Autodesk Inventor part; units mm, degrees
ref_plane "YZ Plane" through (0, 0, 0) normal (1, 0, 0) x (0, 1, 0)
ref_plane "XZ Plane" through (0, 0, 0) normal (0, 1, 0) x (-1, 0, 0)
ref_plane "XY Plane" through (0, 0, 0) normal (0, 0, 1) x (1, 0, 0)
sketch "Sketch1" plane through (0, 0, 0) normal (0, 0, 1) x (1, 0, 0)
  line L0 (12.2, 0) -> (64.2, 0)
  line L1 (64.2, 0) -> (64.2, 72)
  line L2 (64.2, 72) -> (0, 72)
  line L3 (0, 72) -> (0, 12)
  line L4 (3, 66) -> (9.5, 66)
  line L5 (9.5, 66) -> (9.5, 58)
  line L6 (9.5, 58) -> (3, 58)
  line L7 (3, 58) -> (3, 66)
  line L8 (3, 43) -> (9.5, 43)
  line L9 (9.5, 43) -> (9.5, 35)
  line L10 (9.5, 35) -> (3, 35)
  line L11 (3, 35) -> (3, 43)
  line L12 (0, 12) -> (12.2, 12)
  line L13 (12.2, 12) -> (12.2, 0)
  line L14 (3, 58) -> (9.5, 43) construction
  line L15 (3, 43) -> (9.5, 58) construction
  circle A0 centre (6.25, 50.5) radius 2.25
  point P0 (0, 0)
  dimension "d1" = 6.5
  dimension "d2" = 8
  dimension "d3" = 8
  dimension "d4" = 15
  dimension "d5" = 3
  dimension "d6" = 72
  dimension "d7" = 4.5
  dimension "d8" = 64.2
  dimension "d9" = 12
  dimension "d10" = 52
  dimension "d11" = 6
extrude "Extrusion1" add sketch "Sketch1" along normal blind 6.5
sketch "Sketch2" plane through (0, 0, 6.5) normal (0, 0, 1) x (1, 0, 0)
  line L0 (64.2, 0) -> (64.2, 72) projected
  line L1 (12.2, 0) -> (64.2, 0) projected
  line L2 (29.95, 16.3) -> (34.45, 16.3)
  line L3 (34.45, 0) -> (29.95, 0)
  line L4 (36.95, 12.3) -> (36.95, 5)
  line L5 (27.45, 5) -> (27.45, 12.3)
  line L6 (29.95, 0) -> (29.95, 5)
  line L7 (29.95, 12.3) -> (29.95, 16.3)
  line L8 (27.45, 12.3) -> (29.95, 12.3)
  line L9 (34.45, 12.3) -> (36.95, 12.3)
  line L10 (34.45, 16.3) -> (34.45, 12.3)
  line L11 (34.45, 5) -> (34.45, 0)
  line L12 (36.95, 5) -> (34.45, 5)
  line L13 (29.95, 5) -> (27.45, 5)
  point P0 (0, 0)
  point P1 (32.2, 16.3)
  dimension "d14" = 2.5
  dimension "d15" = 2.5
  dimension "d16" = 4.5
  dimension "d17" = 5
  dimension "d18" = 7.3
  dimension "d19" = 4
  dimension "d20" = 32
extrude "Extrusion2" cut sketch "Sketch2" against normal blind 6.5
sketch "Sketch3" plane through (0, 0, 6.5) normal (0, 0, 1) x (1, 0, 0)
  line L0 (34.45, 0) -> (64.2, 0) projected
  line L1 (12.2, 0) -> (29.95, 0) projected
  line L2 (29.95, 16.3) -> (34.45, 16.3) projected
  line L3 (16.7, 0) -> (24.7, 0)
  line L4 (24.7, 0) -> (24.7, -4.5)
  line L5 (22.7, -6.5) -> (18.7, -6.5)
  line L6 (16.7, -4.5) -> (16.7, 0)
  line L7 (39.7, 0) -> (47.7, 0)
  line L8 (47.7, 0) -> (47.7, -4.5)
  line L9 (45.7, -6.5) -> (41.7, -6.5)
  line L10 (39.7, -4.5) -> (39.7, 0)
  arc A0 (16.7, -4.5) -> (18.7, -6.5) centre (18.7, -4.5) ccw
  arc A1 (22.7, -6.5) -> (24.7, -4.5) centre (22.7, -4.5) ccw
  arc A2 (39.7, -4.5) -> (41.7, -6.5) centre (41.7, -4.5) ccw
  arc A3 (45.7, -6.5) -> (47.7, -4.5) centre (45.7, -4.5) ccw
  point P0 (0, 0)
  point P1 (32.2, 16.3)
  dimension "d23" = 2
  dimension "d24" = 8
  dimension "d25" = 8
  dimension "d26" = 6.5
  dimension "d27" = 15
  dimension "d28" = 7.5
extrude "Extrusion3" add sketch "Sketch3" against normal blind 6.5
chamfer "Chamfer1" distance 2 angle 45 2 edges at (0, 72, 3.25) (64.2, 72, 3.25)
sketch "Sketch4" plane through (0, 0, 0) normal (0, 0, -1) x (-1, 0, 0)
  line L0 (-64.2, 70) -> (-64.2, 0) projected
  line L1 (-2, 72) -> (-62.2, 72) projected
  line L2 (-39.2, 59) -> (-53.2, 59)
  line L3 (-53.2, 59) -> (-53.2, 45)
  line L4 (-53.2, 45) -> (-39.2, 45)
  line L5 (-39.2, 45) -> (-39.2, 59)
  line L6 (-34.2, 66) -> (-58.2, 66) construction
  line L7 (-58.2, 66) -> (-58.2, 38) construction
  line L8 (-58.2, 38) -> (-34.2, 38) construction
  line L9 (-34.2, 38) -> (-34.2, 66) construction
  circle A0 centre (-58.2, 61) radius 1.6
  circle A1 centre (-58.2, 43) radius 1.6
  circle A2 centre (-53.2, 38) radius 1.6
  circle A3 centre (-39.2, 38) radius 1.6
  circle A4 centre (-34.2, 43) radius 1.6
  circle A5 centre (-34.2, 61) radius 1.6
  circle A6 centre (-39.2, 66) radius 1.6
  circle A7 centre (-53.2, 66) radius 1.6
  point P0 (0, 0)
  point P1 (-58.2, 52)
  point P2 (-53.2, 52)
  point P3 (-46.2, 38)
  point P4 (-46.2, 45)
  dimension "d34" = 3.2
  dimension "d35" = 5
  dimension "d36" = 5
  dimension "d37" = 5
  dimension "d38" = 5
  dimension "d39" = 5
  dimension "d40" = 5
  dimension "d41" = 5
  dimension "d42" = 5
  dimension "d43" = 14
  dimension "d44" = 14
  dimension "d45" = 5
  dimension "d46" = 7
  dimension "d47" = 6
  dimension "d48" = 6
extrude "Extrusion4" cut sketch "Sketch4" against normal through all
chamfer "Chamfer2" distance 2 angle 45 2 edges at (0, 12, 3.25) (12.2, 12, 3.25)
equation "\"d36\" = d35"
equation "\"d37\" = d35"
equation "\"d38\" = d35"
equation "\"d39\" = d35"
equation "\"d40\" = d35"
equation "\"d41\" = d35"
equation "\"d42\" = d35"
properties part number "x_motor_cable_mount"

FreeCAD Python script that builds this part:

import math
import FreeCAD as App
import Part
import Sketcher


def edges_at(feature, points):
    """Names of the edges that pass closest to the given points."""
    edges = feature.Shape.Edges
    near = lambda p: min(range(len(edges)), key=lambda i: edges[i].distToShape(Part.Vertex(*p))[0])
    return sorted({f"Edge{near(p) + 1}" for p in points})

doc = App.newDocument("Part")
params = doc.addObject("Spreadsheet::Sheet", "Params")
for row, (alias, value) in enumerate([
    ("sketch1_diameter", "4.5 mm"),
    ("sketch1_width", "52 mm"),
    ("sketch1_height", "12 mm"),
    ("sketch1_height2", "72 mm"),
    ("sketch1_height3", "8 mm"),
    ("pad1_length", "6.5 mm"),
    ("sketch2_height", "5 mm"),
    ("sketch2_height2", "4 mm"),
    ("sketch2_width", "4.5 mm"),
    ("sketch2_width2", "2.5 mm"),
    ("sketch2_height3", "7.3 mm"),
    ("pocket1_length", "6.5 mm"),
    ("sketch3_radius", "2 mm"),
    ("sketch3_width", "8 mm"),
    ("pad2_length", "6.5 mm"),
    ("chamfer_size", "2 mm"),
    ("sketch4_diameter", "3.2 mm"),
    ("sketch4_width", "14 mm"),
    ("chamfer2_size", "2 mm"),
], start=1):
    params.set(f"A{row}", alias)
    params.set(f"B{row}", "=" + value)
    params.setAlias(f"B{row}", alias)

body = doc.addObject("PartDesign::Body", "Body")

# Sketch on XY plane
sketch1 = body.newObject("Sketcher::SketchObject", "Sketch")
sketch1.AttachmentSupport = (doc.getObject("XY_Plane"), [""])
sketch1.MapMode = "FlatFace"
sketch1.addGeometry([
    Part.LineSegment(App.Vector(12.2, 12, 0), App.Vector(12.2, 0, 0)),  # 0
    Part.LineSegment(App.Vector(12.2, 0, 0), App.Vector(64.2, 0, 0)),  # 1
    Part.LineSegment(App.Vector(64.2, 0, 0), App.Vector(64.2, 72, 0)),  # 2
    Part.LineSegment(App.Vector(64.2, 72, 0), App.Vector(0, 72, 0)),  # 3
    Part.LineSegment(App.Vector(0, 72, 0), App.Vector(0, 12, 0)),  # 4
    Part.LineSegment(App.Vector(0, 12, 0), App.Vector(12.2, 12, 0)),  # 5
    Part.LineSegment(App.Vector(3, 35, 0), App.Vector(3, 43, 0)),  # 6
    Part.LineSegment(App.Vector(3, 43, 0), App.Vector(9.5, 43, 0)),  # 7
    Part.LineSegment(App.Vector(9.5, 43, 0), App.Vector(9.5, 35, 0)),  # 8
    Part.LineSegment(App.Vector(9.5, 35, 0), App.Vector(3, 35, 0)),  # 9
    Part.Circle(App.Vector(6.2, 50.5, 0), App.Vector(0, 0, 1), 2.2),  # 10
    Part.LineSegment(App.Vector(3, 58, 0), App.Vector(3, 66, 0)),  # 11
    Part.LineSegment(App.Vector(3, 66, 0), App.Vector(9.5, 66, 0)),  # 12
    Part.LineSegment(App.Vector(9.5, 66, 0), App.Vector(9.5, 58, 0)),  # 13
    Part.LineSegment(App.Vector(9.5, 58, 0), App.Vector(3, 58, 0)),  # 14
], False)
sketch1.addConstraint([
    Sketcher.Constraint("Coincident", 0, 2, 1, 1),
    Sketcher.Constraint("Coincident", 1, 2, 2, 1),
    Sketcher.Constraint("Coincident", 2, 2, 3, 1),
    Sketcher.Constraint("Coincident", 3, 2, 4, 1),
    Sketcher.Constraint("Coincident", 4, 2, 5, 1),
    Sketcher.Constraint("Coincident", 5, 2, 0, 1),
    Sketcher.Constraint("Coincident", 6, 2, 7, 1),
    Sketcher.Constraint("Coincident", 7, 2, 8, 1),
    Sketcher.Constraint("Coincident", 8, 2, 9, 1),
    Sketcher.Constraint("Coincident", 9, 2, 6, 1),
    Sketcher.Constraint("Coincident", 11, 2, 12, 1),
    Sketcher.Constraint("Coincident", 12, 2, 13, 1),
    Sketcher.Constraint("Coincident", 13, 2, 14, 1),
    Sketcher.Constraint("Coincident", 14, 2, 11, 1),
    Sketcher.Constraint("Vertical", 0),
    Sketcher.Constraint("Horizontal", 1),
    Sketcher.Constraint("Vertical", 2),
    Sketcher.Constraint("Horizontal", 3),
    Sketcher.Constraint("Vertical", 4),
    Sketcher.Constraint("Horizontal", 5),
    Sketcher.Constraint("Vertical", 6),
    Sketcher.Constraint("Horizontal", 7),
    Sketcher.Constraint("Vertical", 8),
    Sketcher.Constraint("Horizontal", 9),
    Sketcher.Constraint("Vertical", 11),
    Sketcher.Constraint("Horizontal", 12),
    Sketcher.Constraint("Vertical", 13),
    Sketcher.Constraint("Horizontal", 14),
    Sketcher.Constraint("PointOnObject", 0, 2, -1),
    Sketcher.Constraint("PointOnObject", 3, 2, -2),
    Sketcher.Constraint("Vertical", 9, 2, 11, 2),
    Sketcher.Constraint("Vertical", 8, 2, 12, 2),
    Sketcher.Constraint("Equal", 8, 11),
    Sketcher.Constraint("Diameter", 10, 4.5),
    Sketcher.Constraint("DistanceX", 1, 1, 1, 2, 52.0),
    Sketcher.Constraint("DistanceY", 0, 2, 0, 1, 12.0),
    Sketcher.Constraint("DistanceY", 2, 1, 2, 2, 72.0),
    Sketcher.Constraint("DistanceY", 6, 1, 6, 2, 8.0),
    Sketcher.Constraint("DistanceX", 3, 2, 3, 1, 64.2),
    Sketcher.Constraint("DistanceX", 7, 1, 7, 2, 6.5),
    Sketcher.Constraint("DistanceX", -1, 1, 6, 2, 3.0),
    Sketcher.Constraint("DistanceY", 11, 2, 3, 2, 6.0),
    Sketcher.Constraint("DistanceY", 7, 2, 13, 2, 15.0),
    Sketcher.Constraint("DistanceY", -1, 1, 10, 3, 50.5),
    Sketcher.Constraint("DistanceX", -1, 1, 10, 3, 6.25),
])
sketch1.setExpression("Constraints[33]", "Params.sketch1_diameter")
sketch1.setExpression("Constraints[34]", "Params.sketch1_width")
sketch1.setExpression("Constraints[35]", "Params.sketch1_height")
sketch1.setExpression("Constraints[36]", "Params.sketch1_height2")
sketch1.setExpression("Constraints[37]", "Params.sketch1_height3")
pad1 = body.newObject("PartDesign::Pad", "Pad")
pad1.Profile = sketch1
pad1.setExpression("Length", "Params.pad1_length")

# Sketch on XY plane
sketch2 = body.newObject("Sketcher::SketchObject", "Sketch001")
sketch2.AttachmentSupport = (doc.getObject("XY_Plane"), [""])
sketch2.MapMode = "FlatFace"
sketch2.AttachmentOffset = App.Placement(App.Vector(0, 0, 6.5), App.Rotation())
sketch2.addGeometry([
    Part.LineSegment(App.Vector(29.9, 5, 0), App.Vector(29.9, 0, 0)),  # 0
    Part.LineSegment(App.Vector(29.9, 0, 0), App.Vector(34.5, 0, 0)),  # 1
    Part.LineSegment(App.Vector(34.5, 0, 0), App.Vector(34.5, 5, 0)),  # 2
    Part.LineSegment(App.Vector(34.5, 5, 0), App.Vector(37, 5, 0)),  # 3
    Part.LineSegment(App.Vector(37, 5, 0), App.Vector(37, 12.3, 0)),  # 4
    Part.LineSegment(App.Vector(37, 12.3, 0), App.Vector(34.5, 12.3, 0)),  # 5
    Part.LineSegment(App.Vector(34.5, 12.3, 0), App.Vector(34.5, 16.3, 0)),  # 6
    Part.LineSegment(App.Vector(34.5, 16.3, 0), App.Vector(29.9, 16.3, 0)),  # 7
    Part.LineSegment(App.Vector(29.9, 16.3, 0), App.Vector(29.9, 12.3, 0)),  # 8
    Part.LineSegment(App.Vector(29.9, 12.3, 0), App.Vector(27.4, 12.3, 0)),  # 9
    Part.LineSegment(App.Vector(27.4, 12.3, 0), App.Vector(27.4, 5, 0)),  # 10
    Part.LineSegment(App.Vector(27.4, 5, 0), App.Vector(29.9, 5, 0)),  # 11
], False)
sketch2.addConstraint([
    Sketcher.Constraint("Coincident", 0, 2, 1, 1),
    Sketcher.Constraint("Coincident", 1, 2, 2, 1),
    Sketcher.Constraint("Coincident", 2, 2, 3, 1),
    Sketcher.Constraint("Coincident", 3, 2, 4, 1),
    Sketcher.Constraint("Coincident", 4, 2, 5, 1),
    Sketcher.Constraint("Coincident", 5, 2, 6, 1),
    Sketcher.Constraint("Coincident", 6, 2, 7, 1),
    Sketcher.Constraint("Coincident", 7, 2, 8, 1),
    Sketcher.Constraint("Coincident", 8, 2, 9, 1),
    Sketcher.Constraint("Coincident", 9, 2, 10, 1),
    Sketcher.Constraint("Coincident", 10, 2, 11, 1),
    Sketcher.Constraint("Coincident", 11, 2, 0, 1),
    Sketcher.Constraint("Vertical", 0),
    Sketcher.Constraint("Horizontal", 1),
    Sketcher.Constraint("Vertical", 2),
    Sketcher.Constraint("Horizontal", 3),
    Sketcher.Constraint("Vertical", 4),
    Sketcher.Constraint("Horizontal", 5),
    Sketcher.Constraint("Vertical", 6),
    Sketcher.Constraint("Horizontal", 7),
    Sketcher.Constraint("Vertical", 8),
    Sketcher.Constraint("Horizontal", 9),
    Sketcher.Constraint("Vertical", 10),
    Sketcher.Constraint("Horizontal", 11),
    Sketcher.Constraint("PointOnObject", 0, 2, -1),
    Sketcher.Constraint("Horizontal", 5, 2, 8, 2),
    Sketcher.Constraint("Horizontal", 3, 2, 10, 2),
    Sketcher.Constraint("Vertical", 2, 2, 5, 2),
    Sketcher.Constraint("Vertical", 0, 2, 7, 2),
    Sketcher.Constraint("Equal", 5, 9),
    Sketcher.Constraint("DistanceY", 0, 2, 0, 1, 5.0),
    Sketcher.Constraint("DistanceY", 6, 1, 6, 2, 4.0),
    Sketcher.Constraint("DistanceX", 1, 1, 1, 2, 4.5),
    Sketcher.Constraint("DistanceX", 3, 1, 3, 2, 2.5),
    Sketcher.Constraint("DistanceY", 4, 1, 4, 2, 7.3),
    Sketcher.Constraint("DistanceX", -1, 1, 0, 2, 29.95),
])
sketch2.setExpression("Constraints[30]", "Params.sketch2_height")
sketch2.setExpression("Constraints[31]", "Params.sketch2_height2")
sketch2.setExpression("Constraints[32]", "Params.sketch2_width")
sketch2.setExpression("Constraints[33]", "Params.sketch2_width2")
sketch2.setExpression("Constraints[34]", "Params.sketch2_height3")
pocket1 = body.newObject("PartDesign::Pocket", "Pocket")
pocket1.Profile = sketch2
pocket1.setExpression("Length", "Params.pocket1_length")

# Sketch on XY plane
sketch3 = body.newObject("Sketcher::SketchObject", "Sketch002")
sketch3.AttachmentSupport = (doc.getObject("XY_Plane"), [""])
sketch3.MapMode = "FlatFace"
sketch3.AttachmentOffset = App.Placement(App.Vector(0, 0, 6.5), App.Rotation())
sketch3.addGeometry([
    Part.LineSegment(App.Vector(47.7, 0, 0), App.Vector(39.7, 0, 0)),  # 0
    Part.LineSegment(App.Vector(39.7, 0, 0), App.Vector(39.7, -4.5, 0)),  # 1
    Part.ArcOfCircle(Part.Circle(App.Vector(41.7, -4.5, 0), App.Vector(0, 0, 1), 2), math.radians(180), math.radians(270)),  # 2
    Part.LineSegment(App.Vector(41.7, -6.5, 0), App.Vector(45.7, -6.5, 0)),  # 3
    Part.ArcOfCircle(Part.Circle(App.Vector(45.7, -4.5, 0), App.Vector(0, 0, 1), 2), math.radians(-90), math.radians(0)),  # 4
    Part.LineSegment(App.Vector(47.7, -4.5, 0), App.Vector(47.7, 0, 0)),  # 5
    Part.LineSegment(App.Vector(24.7, 0, 0), App.Vector(16.7, 0, 0)),  # 6
    Part.LineSegment(App.Vector(16.7, 0, 0), App.Vector(16.7, -4.5, 0)),  # 7
    Part.ArcOfCircle(Part.Circle(App.Vector(18.7, -4.5, 0), App.Vector(0, 0, 1), 2), math.radians(180), math.radians(270)),  # 8
    Part.LineSegment(App.Vector(18.7, -6.5, 0), App.Vector(22.7, -6.5, 0)),  # 9
    Part.ArcOfCircle(Part.Circle(App.Vector(22.7, -4.5, 0), App.Vector(0, 0, 1), 2), math.radians(-90), math.radians(0)),  # 10
    Part.LineSegment(App.Vector(24.7, -4.5, 0), App.Vector(24.7, 0, 0)),  # 11
], False)
sketch3.addConstraint([
    Sketcher.Constraint("Coincident", 0, 2, 1, 1),
    Sketcher.Constraint("Tangent", 1, 2, 2, 1),
    Sketcher.Constraint("Tangent", 2, 2, 3, 1),
    Sketcher.Constraint("Tangent", 3, 2, 4, 1),
    Sketcher.Constraint("Tangent", 4, 2, 5, 1),
    Sketcher.Constraint("Coincident", 5, 2, 0, 1),
    Sketcher.Constraint("Coincident", 6, 2, 7, 1),
    Sketcher.Constraint("Tangent", 7, 2, 8, 1),
    Sketcher.Constraint("Tangent", 8, 2, 9, 1),
    Sketcher.Constraint("Tangent", 9, 2, 10, 1),
    Sketcher.Constraint("Tangent", 10, 2, 11, 1),
    Sketcher.Constraint("Coincident", 11, 2, 6, 1),
    Sketcher.Constraint("Horizontal", 0),
    Sketcher.Constraint("Vertical", 1),
    Sketcher.Constraint("Horizontal", 3),
    Sketcher.Constraint("Vertical", 5),
    Sketcher.Constraint("Horizontal", 6),
    Sketcher.Constraint("Vertical", 7),
    Sketcher.Constraint("Horizontal", 9),
    Sketcher.Constraint("Vertical", 11),
    Sketcher.Constraint("Equal", 2, 4),
    Sketcher.Constraint("Equal", 4, 8),
    Sketcher.Constraint("Equal", 8, 10),
    Sketcher.Constraint("PointOnObject", 0, 2, -1),
    Sketcher.Constraint("PointOnObject", 6, 2, -1),
    Sketcher.Constraint("Horizontal", 4, 3, 8, 3),
    Sketcher.Constraint("Equal", 0, 6),
    Sketcher.Constraint("Radius", 2, 2.0),
    Sketcher.Constraint("DistanceX", 0, 2, 0, 1, 8.0),
    Sketcher.Constraint("DistanceY", 2, 2, -1, 1, 6.5),
    Sketcher.Constraint("DistanceX", 8, 3, 2, 3, 23.0),
    Sketcher.Constraint("DistanceX", -1, 1, 2, 3, 41.7),
])
sketch3.setExpression("Constraints[27]", "Params.sketch3_radius")
sketch3.setExpression("Constraints[28]", "Params.sketch3_width")
pad2 = body.newObject("PartDesign::Pad", "Pad001")
pad2.Profile = sketch3
pad2.setExpression("Length", "Params.pad2_length")
pad2.Reversed = True
doc.recompute()

chamfer = body.newObject("PartDesign::Chamfer", "Chamfer")
chamfer.Base = (pad2, edges_at(pad2, [(0, 72, 3.25), (64.2, 72, 3.25)]))
chamfer.setExpression("Size", "Params.chamfer_size")

# Sketch on XY plane
sketch4 = body.newObject("Sketcher::SketchObject", "Sketch003")
sketch4.AttachmentSupport = (doc.getObject("XY_Plane"), [""])
sketch4.MapMode = "FlatFace"
sketch4.addGeometry([
    Part.LineSegment(App.Vector(39.2, 45, 0), App.Vector(39.2, 59, 0)),  # 0
    Part.LineSegment(App.Vector(39.2, 59, 0), App.Vector(53.2, 59, 0)),  # 1
    Part.LineSegment(App.Vector(53.2, 59, 0), App.Vector(53.2, 45, 0)),  # 2
    Part.LineSegment(App.Vector(53.2, 45, 0), App.Vector(39.2, 45, 0)),  # 3
    Part.Circle(App.Vector(58.2, 61, 0), App.Vector(0, 0, 1), 1.6),  # 4
    Part.Circle(App.Vector(58.2, 43, 0), App.Vector(0, 0, 1), 1.6),  # 5
    Part.Circle(App.Vector(53.2, 38, 0), App.Vector(0, 0, 1), 1.6),  # 6
    Part.Circle(App.Vector(39.2, 38, 0), App.Vector(0, 0, 1), 1.6),  # 7
    Part.Circle(App.Vector(34.2, 43, 0), App.Vector(0, 0, 1), 1.6),  # 8
    Part.Circle(App.Vector(34.2, 61, 0), App.Vector(0, 0, 1), 1.6),  # 9
    Part.Circle(App.Vector(39.2, 66, 0), App.Vector(0, 0, 1), 1.6),  # 10
    Part.Circle(App.Vector(53.2, 66, 0), App.Vector(0, 0, 1), 1.6),  # 11
], False)
sketch4.addConstraint([
    Sketcher.Constraint("Coincident", 0, 2, 1, 1),
    Sketcher.Constraint("Coincident", 1, 2, 2, 1),
    Sketcher.Constraint("Coincident", 2, 2, 3, 1),
    Sketcher.Constraint("Coincident", 3, 2, 0, 1),
    Sketcher.Constraint("Vertical", 0),
    Sketcher.Constraint("Horizontal", 1),
    Sketcher.Constraint("Vertical", 2),
    Sketcher.Constraint("Horizontal", 3),
    Sketcher.Constraint("Equal", 4, 5),
    Sketcher.Constraint("Equal", 5, 6),
    Sketcher.Constraint("Equal", 6, 7),
    Sketcher.Constraint("Equal", 7, 8),
    Sketcher.Constraint("Equal", 8, 9),
    Sketcher.Constraint("Equal", 9, 10),
    Sketcher.Constraint("Equal", 10, 11),
    Sketcher.Constraint("Horizontal", 6, 3, 7, 3),
    Sketcher.Constraint("Horizontal", 5, 3, 8, 3),
    Sketcher.Constraint("Horizontal", 4, 3, 9, 3),
    Sketcher.Constraint("Horizontal", 10, 3, 11, 3),
    Sketcher.Constraint("Vertical", 4, 3, 5, 3),
    Sketcher.Constraint("Vertical", 8, 3, 9, 3),
    Sketcher.Constraint("Vertical", 7, 3, 10, 3),
    Sketcher.Constraint("Vertical", 6, 3, 11, 3),
    Sketcher.Constraint("Vertical", 10, 3, 0, 2),
    Sketcher.Constraint("Vertical", 11, 3, 1, 2),
    Sketcher.Constraint("Equal", 3, 0),
    Sketcher.Constraint("Diameter", 4, 3.2),
    Sketcher.Constraint("DistanceX", 1, 1, 1, 2, 14.0),
    Sketcher.Constraint("DistanceX", 6, 3, 5, 3, 5.0),
    Sketcher.Constraint("DistanceY", 6, 3, 5, 3, 5.0),
    Sketcher.Constraint("DistanceX", 8, 3, 7, 3, 5.0),
    Sketcher.Constraint("DistanceY", 9, 3, 10, 3, 5.0),
    Sketcher.Constraint("DistanceY", 0, 2, 10, 3, 7.0),
    Sketcher.Constraint("DistanceY", 6, 3, 2, 2, 7.0),
    Sketcher.Constraint("DistanceY", -1, 1, 4, 3, 61.0),
    Sketcher.Constraint("DistanceX", -1, 1, 4, 3, 58.2),
])
sketch4.setExpression("Constraints[26]", "Params.sketch4_diameter")
sketch4.setExpression("Constraints[27]", "Params.sketch4_width")
pocket2 = body.newObject("PartDesign::Pocket", "Pocket001")
pocket2.Profile = sketch4
pocket2.Type = "ThroughAll"
pocket2.Reversed = True
doc.recompute()

chamfer2 = body.newObject("PartDesign::Chamfer", "Chamfer001")
chamfer2.Base = (pocket2, edges_at(pocket2, [(0, 12, 3.25), (12.2, 12, 3.25)]))
chamfer2.setExpression("Size", "Params.chamfer2_size")

doc.recompute()
